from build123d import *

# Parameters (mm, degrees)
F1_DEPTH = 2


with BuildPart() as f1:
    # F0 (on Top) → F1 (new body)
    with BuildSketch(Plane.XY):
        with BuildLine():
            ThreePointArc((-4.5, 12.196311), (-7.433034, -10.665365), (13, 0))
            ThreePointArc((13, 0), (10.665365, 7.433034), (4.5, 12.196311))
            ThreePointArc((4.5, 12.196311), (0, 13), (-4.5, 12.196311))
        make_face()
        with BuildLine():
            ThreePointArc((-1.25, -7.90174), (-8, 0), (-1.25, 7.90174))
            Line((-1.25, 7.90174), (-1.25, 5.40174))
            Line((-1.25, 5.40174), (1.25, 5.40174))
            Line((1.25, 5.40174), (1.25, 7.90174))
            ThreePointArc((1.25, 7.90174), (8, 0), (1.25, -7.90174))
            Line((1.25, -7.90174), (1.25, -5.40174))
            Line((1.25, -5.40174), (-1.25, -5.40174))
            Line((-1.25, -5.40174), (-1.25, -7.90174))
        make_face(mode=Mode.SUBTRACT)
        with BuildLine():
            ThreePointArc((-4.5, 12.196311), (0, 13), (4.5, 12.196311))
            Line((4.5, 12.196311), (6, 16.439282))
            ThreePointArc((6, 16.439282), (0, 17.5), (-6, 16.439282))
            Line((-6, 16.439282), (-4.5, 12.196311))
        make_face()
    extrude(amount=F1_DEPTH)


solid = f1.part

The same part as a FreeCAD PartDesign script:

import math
import FreeCAD as App
import Part
import Sketcher

V = App.Vector
Q = App.Units.Quantity

doc = App.newDocument("Part")
body = doc.addObject("PartDesign::Body", "Body")

sketch1 = body.newObject("Sketcher::SketchObject", "Sketch")
sketch1.AttachmentSupport = (doc.getObject("XY_Plane"), [""])
sketch1.MapMode = "FlatFace"
sketch1.addGeometry([
    Part.ArcOfCircle(Part.Circle(V(0, 0, 0), V(0, 0, 1), 13), math.radians(110), math.radians(360)),
    Part.ArcOfCircle(Part.Circle(V(0, 0, 0), V(0, 0, 1), 13), math.radians(0), math.radians(70)),
    Part.LineSegment(V(4.5, 12.2, 0), V(6, 16.4, 0)),
    Part.ArcOfCircle(Part.Circle(V(0, 0, 0), V(0, 0, 1), 17.5), math.radians(70), math.radians(110)),
    Part.LineSegment(V(-6, 16.4, 0), V(-4.5, 12.2, 0)),
    Part.LineSegment(V(-1.2, -5.4, 0), V(-1.2, -7.9, 0)),
    Part.ArcOfCircle(Part.Circle(V(0, 0, 0), V(0, 0, 1), 8), math.radians(99), math.radians(261)),
    Part.LineSegment(V(-1.2, 7.9, 0), V(-1.2, 5.4, 0)),
    Part.LineSegment(V(-1.2, 5.4, 0), V(1.2, 5.4, 0)),
    Part.LineSegment(V(1.2, 5.4, 0), V(1.2, 7.9, 0)),
    Part.ArcOfCircle(Part.Circle(V(0, 0, 0), V(0, 0, 1), 8), math.radians(-81), math.radians(81)),
    Part.LineSegment(V(1.2, -7.9, 0), V(1.2, -5.4, 0)),
    Part.LineSegment(V(1.2, -5.4, 0), V(-1.2, -5.4, 0)),
], False)
sketch1.addConstraint([
    Sketcher.Constraint("Tangent", 0, 2, 1, 1),
    Sketcher.Constraint("Coincident", 1, 2, 2, 1),
    Sketcher.Constraint("Coincident", 2, 2, 3, 1),
    Sketcher.Constraint("Coincident", 3, 2, 4, 1),
    Sketcher.Constraint("Coincident", 4, 2, 0, 1),
    Sketcher.Constraint("Coincident", 5, 2, 6, 2),
    Sketcher.Constraint("Coincident", 6, 1, 7, 1),
    Sketcher.Constraint("Coincident", 7, 2, 8, 1),
    Sketcher.Constraint("Coincident", 8, 2, 9, 1),
    Sketcher.Constraint("Coincident", 9, 2, 10, 2),
    Sketcher.Constraint("Coincident", 10, 1, 11, 1),
    Sketcher.Constraint("Coincident", 11, 2, 12, 1),
    Sketcher.Constraint("Coincident", 12, 2, 5, 1),
    Sketcher.Constraint("Vertical", 5),
    Sketcher.Constraint("Vertical", 7),
    Sketcher.Constraint("Horizontal", 8),
    Sketcher.Constraint("Vertical", 9),
    Sketcher.Constraint("Vertical", 11),
    Sketcher.Constraint("Horizontal", 12),
    Sketcher.Constraint("Coincident", 0, 3, -1, 1),
    Sketcher.Constraint("Coincident", 3, 3, -1, 1),
    Sketcher.Constraint("Coincident", 6, 3, -1, 1),
    Sketcher.Constraint("Coincident", 10, 3, -1, 1),
    Sketcher.Constraint("Equal", 0, 1),
    Sketcher.Constraint("Equal", 6, 10),
    Sketcher.Constraint("Symmetric", 7, 2, 11, 2, -1, 1),
    Sketcher.Constraint("PointOnObject", 0, 2, -1),
    Sketcher.Constraint("Horizontal", 2, 2, 3, 2),
    Sketcher.Constraint("Horizontal", 1, 2, 4, 2),
    Sketcher.Constraint("Horizontal", 6, 1, 9, 2),
    Sketcher.Constraint("Horizontal", 5, 2, 10, 1),
    Sketcher.Constraint("Equal", 12, 5),
    Sketcher.Constraint("Radius", 0, Q("13 mm")),
    Sketcher.Constraint("Radius", 6, Q("8 mm")),
    Sketcher.Constraint("DistanceX", 8, 1, 8, 2, Q("2.5 mm")),
    Sketcher.Constraint("DistanceX", -1, 1, 2, 2, Q("6 mm")),
    Sketcher.Constraint("DistanceX", 4, 2, 1, 2, Q("9 mm")),
    Sketcher.Constraint("Radius", 3, Q("17.499997 mm")),
])
pad1 = body.newObject("PartDesign::Pad", "Pad")
pad1.Profile = sketch1
pad1.Length = 2

doc.recompute()
